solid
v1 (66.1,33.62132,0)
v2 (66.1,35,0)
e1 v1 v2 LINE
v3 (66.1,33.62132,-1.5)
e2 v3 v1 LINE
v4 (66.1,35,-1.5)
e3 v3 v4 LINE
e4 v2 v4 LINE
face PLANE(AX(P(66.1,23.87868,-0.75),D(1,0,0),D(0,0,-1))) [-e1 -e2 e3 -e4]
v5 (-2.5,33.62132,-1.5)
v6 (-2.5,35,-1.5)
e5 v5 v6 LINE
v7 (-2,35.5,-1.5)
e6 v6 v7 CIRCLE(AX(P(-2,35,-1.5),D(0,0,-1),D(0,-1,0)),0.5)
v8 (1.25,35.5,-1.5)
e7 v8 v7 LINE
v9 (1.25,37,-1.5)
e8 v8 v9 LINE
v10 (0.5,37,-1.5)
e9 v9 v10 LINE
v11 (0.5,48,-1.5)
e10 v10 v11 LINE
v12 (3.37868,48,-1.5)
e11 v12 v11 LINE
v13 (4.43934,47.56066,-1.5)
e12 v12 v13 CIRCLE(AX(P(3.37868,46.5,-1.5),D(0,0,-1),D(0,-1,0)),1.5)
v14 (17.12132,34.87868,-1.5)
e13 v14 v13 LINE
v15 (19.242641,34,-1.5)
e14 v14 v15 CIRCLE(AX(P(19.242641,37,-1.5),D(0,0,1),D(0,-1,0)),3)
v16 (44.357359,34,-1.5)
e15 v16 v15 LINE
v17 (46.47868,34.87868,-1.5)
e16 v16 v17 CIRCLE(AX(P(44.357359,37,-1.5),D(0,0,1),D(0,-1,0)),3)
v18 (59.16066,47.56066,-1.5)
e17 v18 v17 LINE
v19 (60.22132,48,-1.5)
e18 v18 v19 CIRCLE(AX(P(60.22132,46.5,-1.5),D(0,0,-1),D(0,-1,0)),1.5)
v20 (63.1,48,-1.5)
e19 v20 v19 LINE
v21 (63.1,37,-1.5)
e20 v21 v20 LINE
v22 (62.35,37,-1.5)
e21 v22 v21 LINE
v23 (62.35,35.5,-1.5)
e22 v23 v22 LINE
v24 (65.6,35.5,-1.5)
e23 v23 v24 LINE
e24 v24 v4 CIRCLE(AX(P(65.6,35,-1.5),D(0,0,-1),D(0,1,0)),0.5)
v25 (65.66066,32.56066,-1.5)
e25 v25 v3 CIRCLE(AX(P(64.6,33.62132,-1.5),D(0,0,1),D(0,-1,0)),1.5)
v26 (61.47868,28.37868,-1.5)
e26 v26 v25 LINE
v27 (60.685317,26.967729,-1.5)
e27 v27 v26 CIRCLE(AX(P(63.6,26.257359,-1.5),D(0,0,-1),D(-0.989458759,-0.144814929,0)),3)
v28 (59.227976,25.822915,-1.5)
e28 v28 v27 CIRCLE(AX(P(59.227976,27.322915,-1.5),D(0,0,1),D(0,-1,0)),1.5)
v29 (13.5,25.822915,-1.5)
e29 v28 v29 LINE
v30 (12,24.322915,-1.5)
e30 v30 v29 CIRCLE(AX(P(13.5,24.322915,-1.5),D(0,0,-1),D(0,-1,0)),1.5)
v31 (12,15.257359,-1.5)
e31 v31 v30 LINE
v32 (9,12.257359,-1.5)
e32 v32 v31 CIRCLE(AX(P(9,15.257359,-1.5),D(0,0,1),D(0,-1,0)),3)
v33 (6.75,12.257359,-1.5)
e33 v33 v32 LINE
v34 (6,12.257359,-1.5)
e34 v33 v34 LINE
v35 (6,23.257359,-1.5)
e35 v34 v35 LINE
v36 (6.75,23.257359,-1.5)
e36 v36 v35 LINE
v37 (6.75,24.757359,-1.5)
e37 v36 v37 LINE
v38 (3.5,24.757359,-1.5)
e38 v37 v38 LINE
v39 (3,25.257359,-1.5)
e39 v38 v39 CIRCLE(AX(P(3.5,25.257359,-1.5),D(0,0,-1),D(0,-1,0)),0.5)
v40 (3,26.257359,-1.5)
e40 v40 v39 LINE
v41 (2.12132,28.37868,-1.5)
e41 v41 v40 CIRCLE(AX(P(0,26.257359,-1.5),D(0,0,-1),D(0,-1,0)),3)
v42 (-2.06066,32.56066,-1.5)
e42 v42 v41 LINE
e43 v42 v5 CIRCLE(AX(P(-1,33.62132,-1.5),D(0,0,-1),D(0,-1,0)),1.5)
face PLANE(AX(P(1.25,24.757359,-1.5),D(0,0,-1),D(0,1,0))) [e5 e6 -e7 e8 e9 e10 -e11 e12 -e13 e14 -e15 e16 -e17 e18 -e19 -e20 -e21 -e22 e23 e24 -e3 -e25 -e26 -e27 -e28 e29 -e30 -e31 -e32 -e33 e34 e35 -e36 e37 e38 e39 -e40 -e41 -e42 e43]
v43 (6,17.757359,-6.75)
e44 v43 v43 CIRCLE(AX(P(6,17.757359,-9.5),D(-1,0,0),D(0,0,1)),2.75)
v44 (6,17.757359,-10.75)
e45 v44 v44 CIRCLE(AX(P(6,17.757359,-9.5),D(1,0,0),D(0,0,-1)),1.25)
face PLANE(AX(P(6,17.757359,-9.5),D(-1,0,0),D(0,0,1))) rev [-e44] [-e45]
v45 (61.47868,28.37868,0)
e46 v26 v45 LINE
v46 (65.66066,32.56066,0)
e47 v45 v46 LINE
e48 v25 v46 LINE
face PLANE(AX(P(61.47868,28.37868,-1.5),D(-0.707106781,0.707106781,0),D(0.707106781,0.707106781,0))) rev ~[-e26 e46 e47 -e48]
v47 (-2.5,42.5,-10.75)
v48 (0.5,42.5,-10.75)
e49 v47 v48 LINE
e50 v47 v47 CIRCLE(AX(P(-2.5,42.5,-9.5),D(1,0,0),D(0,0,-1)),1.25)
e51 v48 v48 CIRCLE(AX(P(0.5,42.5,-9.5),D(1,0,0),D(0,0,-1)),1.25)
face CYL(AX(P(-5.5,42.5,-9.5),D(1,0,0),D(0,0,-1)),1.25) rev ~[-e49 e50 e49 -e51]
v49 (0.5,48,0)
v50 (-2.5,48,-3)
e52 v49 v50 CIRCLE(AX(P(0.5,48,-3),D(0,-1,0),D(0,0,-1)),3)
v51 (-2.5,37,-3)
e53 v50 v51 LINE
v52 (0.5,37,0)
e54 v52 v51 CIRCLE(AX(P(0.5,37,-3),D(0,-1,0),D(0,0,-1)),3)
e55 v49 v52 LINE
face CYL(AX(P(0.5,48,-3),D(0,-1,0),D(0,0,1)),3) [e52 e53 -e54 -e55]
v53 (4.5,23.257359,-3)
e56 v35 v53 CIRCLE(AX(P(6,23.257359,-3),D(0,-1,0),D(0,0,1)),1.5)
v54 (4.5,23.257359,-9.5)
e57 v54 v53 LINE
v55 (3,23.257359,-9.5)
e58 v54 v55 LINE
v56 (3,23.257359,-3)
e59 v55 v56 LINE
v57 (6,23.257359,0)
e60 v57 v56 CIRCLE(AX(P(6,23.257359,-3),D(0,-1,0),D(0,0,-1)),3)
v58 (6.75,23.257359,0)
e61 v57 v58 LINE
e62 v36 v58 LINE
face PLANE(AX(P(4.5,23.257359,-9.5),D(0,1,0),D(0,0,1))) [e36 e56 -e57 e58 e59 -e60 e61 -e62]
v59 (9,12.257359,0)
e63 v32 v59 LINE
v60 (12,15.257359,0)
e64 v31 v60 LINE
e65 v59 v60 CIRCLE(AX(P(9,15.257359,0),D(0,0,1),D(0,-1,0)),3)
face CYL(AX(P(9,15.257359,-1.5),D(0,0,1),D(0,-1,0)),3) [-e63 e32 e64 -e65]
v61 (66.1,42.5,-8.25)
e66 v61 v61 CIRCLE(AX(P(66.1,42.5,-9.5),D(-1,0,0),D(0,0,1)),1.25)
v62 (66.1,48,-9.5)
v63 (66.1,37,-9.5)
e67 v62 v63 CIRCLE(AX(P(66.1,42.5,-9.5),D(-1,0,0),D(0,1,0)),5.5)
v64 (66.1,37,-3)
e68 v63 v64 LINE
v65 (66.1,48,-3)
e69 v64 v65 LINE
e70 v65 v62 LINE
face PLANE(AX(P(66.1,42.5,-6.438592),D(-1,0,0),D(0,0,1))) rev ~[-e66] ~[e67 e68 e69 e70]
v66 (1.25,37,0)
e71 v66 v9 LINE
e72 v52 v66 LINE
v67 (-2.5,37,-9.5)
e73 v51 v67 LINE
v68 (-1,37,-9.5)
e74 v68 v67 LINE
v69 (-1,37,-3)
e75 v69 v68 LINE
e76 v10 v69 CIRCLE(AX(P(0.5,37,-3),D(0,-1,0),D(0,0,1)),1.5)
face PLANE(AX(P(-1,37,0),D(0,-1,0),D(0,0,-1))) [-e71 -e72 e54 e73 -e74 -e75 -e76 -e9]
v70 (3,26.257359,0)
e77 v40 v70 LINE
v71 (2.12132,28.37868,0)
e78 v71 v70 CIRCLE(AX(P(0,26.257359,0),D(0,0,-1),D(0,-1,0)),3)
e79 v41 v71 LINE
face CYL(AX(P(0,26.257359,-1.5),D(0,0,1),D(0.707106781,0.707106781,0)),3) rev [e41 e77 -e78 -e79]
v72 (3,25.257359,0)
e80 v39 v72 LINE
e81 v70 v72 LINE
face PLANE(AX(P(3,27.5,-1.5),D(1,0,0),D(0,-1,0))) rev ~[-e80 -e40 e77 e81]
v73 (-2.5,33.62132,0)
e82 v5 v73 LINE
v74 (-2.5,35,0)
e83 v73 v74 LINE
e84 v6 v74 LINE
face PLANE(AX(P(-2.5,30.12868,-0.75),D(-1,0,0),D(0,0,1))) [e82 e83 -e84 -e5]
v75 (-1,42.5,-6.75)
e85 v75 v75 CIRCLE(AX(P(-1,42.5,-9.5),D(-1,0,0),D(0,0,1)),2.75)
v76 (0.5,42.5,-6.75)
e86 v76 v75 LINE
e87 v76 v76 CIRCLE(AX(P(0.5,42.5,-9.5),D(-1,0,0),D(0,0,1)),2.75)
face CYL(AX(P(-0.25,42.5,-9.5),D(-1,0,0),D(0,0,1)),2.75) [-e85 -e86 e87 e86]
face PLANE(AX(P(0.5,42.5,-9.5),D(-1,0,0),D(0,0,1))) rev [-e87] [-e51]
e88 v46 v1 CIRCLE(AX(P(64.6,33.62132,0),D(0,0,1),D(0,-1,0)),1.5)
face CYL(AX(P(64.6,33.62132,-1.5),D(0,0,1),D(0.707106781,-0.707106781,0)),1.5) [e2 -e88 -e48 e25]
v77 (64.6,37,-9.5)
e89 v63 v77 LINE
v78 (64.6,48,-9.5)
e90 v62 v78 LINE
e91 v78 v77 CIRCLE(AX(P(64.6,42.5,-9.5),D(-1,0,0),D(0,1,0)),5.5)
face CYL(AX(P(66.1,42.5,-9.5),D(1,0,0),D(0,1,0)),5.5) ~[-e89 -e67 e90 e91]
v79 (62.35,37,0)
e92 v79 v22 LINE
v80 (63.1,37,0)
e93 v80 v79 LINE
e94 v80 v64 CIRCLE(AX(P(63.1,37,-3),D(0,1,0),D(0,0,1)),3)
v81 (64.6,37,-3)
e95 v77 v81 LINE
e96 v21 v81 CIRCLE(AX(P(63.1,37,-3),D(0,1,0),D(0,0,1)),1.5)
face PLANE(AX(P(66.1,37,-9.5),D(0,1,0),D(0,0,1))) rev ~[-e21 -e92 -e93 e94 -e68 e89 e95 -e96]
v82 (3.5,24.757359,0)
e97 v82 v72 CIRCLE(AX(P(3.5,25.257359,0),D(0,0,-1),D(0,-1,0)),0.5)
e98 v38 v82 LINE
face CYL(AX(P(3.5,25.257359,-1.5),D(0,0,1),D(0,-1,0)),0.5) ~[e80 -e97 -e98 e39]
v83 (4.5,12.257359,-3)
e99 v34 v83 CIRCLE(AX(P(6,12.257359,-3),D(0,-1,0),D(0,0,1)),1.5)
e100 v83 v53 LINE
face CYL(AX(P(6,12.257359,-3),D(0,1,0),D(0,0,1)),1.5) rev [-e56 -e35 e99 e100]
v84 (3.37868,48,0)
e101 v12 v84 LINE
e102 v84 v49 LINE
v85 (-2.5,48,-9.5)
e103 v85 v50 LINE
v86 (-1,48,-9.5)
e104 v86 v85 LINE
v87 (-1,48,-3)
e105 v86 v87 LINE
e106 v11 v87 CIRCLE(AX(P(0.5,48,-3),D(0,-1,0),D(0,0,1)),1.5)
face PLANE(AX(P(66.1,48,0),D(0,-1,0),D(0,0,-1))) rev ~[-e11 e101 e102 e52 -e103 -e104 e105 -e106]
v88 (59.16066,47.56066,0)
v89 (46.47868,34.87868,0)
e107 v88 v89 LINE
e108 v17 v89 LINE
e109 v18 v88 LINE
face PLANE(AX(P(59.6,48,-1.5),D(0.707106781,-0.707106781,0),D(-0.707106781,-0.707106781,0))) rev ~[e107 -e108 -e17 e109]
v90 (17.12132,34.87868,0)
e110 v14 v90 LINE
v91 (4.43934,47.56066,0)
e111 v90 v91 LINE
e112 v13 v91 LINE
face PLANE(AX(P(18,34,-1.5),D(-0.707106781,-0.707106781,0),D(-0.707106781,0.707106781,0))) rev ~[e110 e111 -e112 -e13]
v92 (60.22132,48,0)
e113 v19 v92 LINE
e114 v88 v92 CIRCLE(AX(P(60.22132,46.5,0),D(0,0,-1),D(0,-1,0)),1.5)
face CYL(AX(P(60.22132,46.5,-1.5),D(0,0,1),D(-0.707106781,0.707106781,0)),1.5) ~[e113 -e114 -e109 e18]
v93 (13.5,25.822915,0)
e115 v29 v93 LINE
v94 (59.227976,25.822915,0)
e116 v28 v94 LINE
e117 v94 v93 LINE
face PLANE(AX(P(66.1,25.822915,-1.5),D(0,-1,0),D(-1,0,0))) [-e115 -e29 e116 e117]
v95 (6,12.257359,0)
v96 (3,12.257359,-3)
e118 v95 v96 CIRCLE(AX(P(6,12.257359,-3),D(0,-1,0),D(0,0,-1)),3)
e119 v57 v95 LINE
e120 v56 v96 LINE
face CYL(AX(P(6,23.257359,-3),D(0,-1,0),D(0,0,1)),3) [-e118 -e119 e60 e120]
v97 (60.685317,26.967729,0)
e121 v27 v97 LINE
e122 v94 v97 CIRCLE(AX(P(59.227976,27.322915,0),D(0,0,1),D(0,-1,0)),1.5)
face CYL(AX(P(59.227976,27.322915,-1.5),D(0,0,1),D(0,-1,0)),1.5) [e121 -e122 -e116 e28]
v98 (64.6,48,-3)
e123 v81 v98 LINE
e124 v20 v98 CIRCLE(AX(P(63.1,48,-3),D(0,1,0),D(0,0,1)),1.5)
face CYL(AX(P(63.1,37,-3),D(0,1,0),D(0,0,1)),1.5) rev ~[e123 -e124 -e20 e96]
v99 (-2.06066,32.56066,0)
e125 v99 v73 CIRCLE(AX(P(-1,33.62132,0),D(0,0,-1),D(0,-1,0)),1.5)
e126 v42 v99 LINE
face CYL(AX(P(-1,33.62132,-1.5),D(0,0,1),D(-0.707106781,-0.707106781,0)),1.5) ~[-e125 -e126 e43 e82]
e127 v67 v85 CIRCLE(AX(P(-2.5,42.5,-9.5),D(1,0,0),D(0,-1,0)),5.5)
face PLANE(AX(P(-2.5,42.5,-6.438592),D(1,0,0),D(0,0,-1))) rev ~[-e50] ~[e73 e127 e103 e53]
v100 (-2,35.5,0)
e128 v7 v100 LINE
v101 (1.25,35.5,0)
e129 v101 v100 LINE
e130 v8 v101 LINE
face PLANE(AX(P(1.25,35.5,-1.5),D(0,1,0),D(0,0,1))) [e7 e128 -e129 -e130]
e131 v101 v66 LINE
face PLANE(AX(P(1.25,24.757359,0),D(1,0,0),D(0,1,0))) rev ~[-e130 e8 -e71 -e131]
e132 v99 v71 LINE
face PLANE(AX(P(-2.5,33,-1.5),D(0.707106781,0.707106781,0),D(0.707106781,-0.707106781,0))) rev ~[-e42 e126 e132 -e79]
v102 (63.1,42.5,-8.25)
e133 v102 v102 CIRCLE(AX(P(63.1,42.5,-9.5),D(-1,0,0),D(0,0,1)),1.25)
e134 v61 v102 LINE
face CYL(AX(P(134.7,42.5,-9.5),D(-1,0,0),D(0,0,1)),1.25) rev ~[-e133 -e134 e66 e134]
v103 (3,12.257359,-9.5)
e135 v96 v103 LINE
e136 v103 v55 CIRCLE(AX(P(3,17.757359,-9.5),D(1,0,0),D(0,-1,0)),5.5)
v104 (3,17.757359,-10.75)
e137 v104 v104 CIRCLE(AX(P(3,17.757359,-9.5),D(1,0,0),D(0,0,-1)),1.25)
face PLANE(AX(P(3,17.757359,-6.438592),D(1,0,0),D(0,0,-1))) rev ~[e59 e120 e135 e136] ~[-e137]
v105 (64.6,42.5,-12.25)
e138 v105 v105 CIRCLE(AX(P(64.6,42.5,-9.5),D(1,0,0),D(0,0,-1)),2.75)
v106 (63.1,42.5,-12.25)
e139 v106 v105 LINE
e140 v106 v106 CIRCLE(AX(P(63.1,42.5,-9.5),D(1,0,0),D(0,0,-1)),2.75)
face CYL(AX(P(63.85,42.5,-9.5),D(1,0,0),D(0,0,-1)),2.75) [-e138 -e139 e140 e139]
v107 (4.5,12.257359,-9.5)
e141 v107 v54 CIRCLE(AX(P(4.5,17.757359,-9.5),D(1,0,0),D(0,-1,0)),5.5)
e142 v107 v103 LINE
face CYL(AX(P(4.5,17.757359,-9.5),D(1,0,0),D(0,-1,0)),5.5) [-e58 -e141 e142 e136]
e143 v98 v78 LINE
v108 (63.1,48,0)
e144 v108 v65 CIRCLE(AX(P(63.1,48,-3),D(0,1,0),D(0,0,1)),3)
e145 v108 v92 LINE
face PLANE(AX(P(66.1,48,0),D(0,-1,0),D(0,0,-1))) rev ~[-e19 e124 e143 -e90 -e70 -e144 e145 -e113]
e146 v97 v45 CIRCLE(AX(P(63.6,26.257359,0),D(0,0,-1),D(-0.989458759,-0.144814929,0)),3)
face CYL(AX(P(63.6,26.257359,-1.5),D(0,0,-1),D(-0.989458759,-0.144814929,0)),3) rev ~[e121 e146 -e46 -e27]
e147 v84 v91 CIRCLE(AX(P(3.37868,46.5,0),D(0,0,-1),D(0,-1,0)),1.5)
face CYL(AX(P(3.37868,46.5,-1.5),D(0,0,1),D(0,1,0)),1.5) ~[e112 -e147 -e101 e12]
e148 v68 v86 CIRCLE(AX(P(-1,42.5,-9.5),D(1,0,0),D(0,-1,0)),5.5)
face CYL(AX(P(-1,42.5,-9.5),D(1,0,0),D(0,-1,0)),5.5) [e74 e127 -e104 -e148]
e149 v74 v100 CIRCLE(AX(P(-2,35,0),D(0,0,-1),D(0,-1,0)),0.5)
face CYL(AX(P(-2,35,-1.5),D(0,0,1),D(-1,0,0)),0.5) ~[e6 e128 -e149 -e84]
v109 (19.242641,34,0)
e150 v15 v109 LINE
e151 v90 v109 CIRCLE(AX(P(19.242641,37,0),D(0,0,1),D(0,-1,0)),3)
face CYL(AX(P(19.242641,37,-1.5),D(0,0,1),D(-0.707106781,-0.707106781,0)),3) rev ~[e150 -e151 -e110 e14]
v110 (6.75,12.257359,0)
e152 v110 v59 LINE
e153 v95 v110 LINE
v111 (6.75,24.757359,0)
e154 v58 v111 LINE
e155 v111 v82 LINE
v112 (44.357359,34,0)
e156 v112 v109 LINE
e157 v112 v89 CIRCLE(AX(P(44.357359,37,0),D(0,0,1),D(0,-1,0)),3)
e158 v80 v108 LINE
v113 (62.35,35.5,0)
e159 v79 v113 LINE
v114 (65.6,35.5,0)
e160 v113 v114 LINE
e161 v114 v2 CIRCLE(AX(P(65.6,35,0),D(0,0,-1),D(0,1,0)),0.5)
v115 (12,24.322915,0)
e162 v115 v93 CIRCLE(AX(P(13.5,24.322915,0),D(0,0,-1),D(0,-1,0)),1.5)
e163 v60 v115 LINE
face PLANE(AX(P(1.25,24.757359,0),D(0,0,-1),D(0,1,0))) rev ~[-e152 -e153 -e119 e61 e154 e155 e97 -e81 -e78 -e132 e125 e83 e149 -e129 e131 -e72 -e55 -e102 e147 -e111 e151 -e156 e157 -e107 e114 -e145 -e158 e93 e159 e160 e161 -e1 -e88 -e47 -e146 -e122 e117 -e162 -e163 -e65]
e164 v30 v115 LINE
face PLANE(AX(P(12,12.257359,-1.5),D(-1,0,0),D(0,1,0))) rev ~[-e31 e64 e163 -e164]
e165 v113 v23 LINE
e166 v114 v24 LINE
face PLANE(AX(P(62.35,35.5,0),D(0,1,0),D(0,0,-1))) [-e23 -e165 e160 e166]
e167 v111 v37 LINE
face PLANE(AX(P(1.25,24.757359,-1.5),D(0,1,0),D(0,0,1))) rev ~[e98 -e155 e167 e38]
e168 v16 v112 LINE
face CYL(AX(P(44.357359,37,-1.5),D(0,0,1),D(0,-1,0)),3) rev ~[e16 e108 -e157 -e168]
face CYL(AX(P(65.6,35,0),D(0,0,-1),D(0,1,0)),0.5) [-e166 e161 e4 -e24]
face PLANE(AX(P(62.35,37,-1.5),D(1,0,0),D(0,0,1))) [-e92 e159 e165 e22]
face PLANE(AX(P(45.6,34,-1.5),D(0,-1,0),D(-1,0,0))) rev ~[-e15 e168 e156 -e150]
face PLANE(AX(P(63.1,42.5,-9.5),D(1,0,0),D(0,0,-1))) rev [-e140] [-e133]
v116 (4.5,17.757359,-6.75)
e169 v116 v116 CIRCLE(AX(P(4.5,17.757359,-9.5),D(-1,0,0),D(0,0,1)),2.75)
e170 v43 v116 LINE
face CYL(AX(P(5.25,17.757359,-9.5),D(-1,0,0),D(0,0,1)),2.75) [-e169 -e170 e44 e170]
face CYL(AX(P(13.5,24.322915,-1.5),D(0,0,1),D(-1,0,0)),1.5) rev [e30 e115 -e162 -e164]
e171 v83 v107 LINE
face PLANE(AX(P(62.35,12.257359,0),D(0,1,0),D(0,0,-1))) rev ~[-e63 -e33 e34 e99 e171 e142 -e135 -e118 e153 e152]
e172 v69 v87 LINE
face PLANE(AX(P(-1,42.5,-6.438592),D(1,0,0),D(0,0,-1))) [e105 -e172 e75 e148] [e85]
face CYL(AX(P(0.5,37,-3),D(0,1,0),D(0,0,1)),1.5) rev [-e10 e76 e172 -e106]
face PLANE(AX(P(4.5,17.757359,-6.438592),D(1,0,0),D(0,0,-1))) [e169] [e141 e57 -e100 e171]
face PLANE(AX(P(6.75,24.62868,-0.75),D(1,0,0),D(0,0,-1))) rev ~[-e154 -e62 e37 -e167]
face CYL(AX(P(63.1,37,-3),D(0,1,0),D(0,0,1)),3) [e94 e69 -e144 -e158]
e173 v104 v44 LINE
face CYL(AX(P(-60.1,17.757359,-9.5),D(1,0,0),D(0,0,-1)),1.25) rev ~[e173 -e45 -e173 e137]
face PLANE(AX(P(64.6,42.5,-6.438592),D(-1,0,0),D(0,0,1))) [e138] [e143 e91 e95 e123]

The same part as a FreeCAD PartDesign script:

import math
import FreeCAD as App
import Part
import Sketcher

V = App.Vector
Q = App.Units.Quantity


def edges_at(feature, points):
    """Names of the edges that pass closest to the given points."""
    edges = feature.Shape.Edges
    near = lambda p: min(range(len(edges)), key=lambda i: edges[i].distToShape(Part.Vertex(*p))[0])
    return sorted({f"Edge{near(p) + 1}" for p in points})


def add_polygon(sketch, points):
    """Adds a closed chain of lines whose ends are joined by coincident constraints."""
    first, n = sketch.GeometryCount, len(points)
    for a, b in zip(points, points[1:] + points[:1]):
        sketch.addGeometry(Part.LineSegment(App.Vector(*a, 0), App.Vector(*b, 0)), False)
    for i in range(n):
        sketch.addConstraint(Sketcher.Constraint("Coincident", first + i, 2, first + (i + 1) % n, 1))

doc = App.newDocument("Part")
params = doc.addObject("Spreadsheet::Sheet", "Params")
for row, (alias, value) in enumerate([
    ("sketch1_width", "5.5 mm"),
    ("pad1_length", "1.5 mm"),
    ("sketch2_height", "1.5 mm"),
    ("pad2_length", "55.6 mm"),
    ("sketch3_width", "11 mm"),
    ("sketch3_height", "1.5 mm"),
    ("pad3_length", "2.25 mm"),
    ("sketch4_height", "1.5 mm"),
    ("sketch4_width", "63.35 mm"),
    ("pad4_length", "11 mm"),
    ("sketch5_radius", "5.5 mm"),
    ("sketch5_height", "9.5 mm"),
    ("pad5_length", "1.5 mm"),
    ("sketch6_radius", "5.5 mm"),
    ("sketch6_height", "9.5 mm"),
    ("pad6_length", "1.5 mm"),
    ("sketch7_width", "11 mm"),
    ("sketch7_height", "1.5 mm"),
    ("pad7_length", "2.25 mm"),
    ("sketch8_radius", "5.5 mm"),
    ("sketch8_height", "9.5 mm"),
    ("pad8_length", "1.5 mm"),
    ("sketch9_height", "1.5 mm"),
    ("pad9_length", "3.75 mm"),
    ("sketch10_height", "1.5 mm"),
    ("pad10_length", "3.75 mm"),
    ("sketch11_width", "5.5 mm"),
    ("sketch12_width", "54.1 mm"),
    ("sketch13_radius", "3 mm"),
    ("sketch14_width", "27.6 mm"),
    ("sketch14_width2", "55.6 mm"),
    ("sketch15_width", "1.5 mm"),
    ("sketch15_height", "2.75 mm"),
    ("revolution_angle", "360 deg"),
    ("sketch16_width", "1.5 mm"),
    ("sketch16_height", "2.75 mm"),
    ("revolution2_angle", "360 deg"),
    ("sketch17_width", "1.5 mm"),
    ("sketch17_height", "2.75 mm"),
    ("revolution3_angle", "360 deg"),
    ("sketch18_diameter", "2.5 mm"),
    ("hole_diameter", "2.5 mm"),
    ("hole_depth", "63.1 mm"),
    ("sketch19_diameter", "2.5 mm"),
    ("hole2_diameter", "2.5 mm"),
    ("hole2_depth", "3 mm"),
    ("sketch20_diameter", "2.5 mm"),
    ("hole3_diameter", "2.5 mm"),
    ("hole3_depth", "68.6 mm"),
    ("fillet_radius", "0.5 mm"),
    ("fillet2_radius", "1.5 mm"),
    ("fillet3_radius", "3 mm"),
], start=1):
    params.set(f"A{row}", alias)
    params.set(f"B{row}", "=" + value)
    params.setAlias(f"B{row}", alias)

body = doc.addObject("PartDesign::Body", "Body")

# Sketch on XY plane
sketch1 = doc.addObject("Sketcher::SketchObject", "Sketch")
body.addObject(sketch1)
sketch1.AttachmentSupport = (doc.XY_Plane, [""])
sketch1.MapMode = "FlatFace"
add_polygon(sketch1, [(1, 37), (1, 25), (7, 25), (7, 37)])  # lines 0-3
sketch1.addConstraint(Sketcher.Constraint("Vertical", 0))
sketch1.addConstraint(Sketcher.Constraint("Horizontal", 1))
sketch1.addConstraint(Sketcher.Constraint("Vertical", 2))
sketch1.addConstraint(Sketcher.Constraint("Horizontal", 3))
sketch1.addConstraint(Sketcher.Constraint("DistanceX", 1, 1, 1, 2, Q("5.5 mm")))
sketch1.addConstraint(Sketcher.Constraint("DistanceY", -1, 1, 2, 2, Q("37 mm")))
sketch1.addConstraint(Sketcher.Constraint("DistanceX", -1, 1, 0, 2, Q("1.25 mm")))
sketch1.addConstraint(Sketcher.Constraint("DistanceY", 0, 2, 0, 1, Q("12.242641 mm")))
sketch1.setExpression("Constraints[8]", "Params.sketch1_width")
pad1 = doc.addObject("PartDesign::Pad", "Pad")
body.addObject(pad1)
pad1.Profile = sketch1
pad1.setExpression("Length", "Params.pad1_length")
pad1.Reversed = True

# Sketch on YZ plane
sketch2 = doc.addObject("Sketcher::SketchObject", "Sketch001")
body.addObject(sketch2)
sketch2.AttachmentSupport = (doc.YZ_Plane, [""])
sketch2.MapMode = "FlatFace"
sketch2.AttachmentOffset = App.Placement(V(0, 0, 6.75), App.Rotation())
add_polygon(sketch2, [(37, 0), (12.3, 0), (12.3, -1.5), (37, -1.5)])  # lines 0-3
sketch2.addConstraint(Sketcher.Constraint("Horizontal", 0))
sketch2.addConstraint(Sketcher.Constraint("Vertical", 1))
sketch2.addConstraint(Sketcher.Constraint("Horizontal", 2))
sketch2.addConstraint(Sketcher.Constraint("Vertical", 3))
sketch2.addConstraint(Sketcher.Constraint("PointOnObject", 0, 2, -1))
sketch2.addConstraint(Sketcher.Constraint("DistanceY", 1, 2, 1, 1, Q("1.5 mm")))
sketch2.addConstraint(Sketcher.Constraint("DistanceX", -1, 1, 2, 2, Q("37 mm")))
sketch2.addConstraint(Sketcher.Constraint("DistanceX", 0, 2, 0, 1, Q("24.742641 mm")))
sketch2.setExpression("Constraints[9]", "Params.sketch2_height")
pad2 = doc.addObject("PartDesign::Pad", "Pad001")
body.addObject(pad2)
pad2.Profile = sketch2
pad2.setExpression("Length", "Params.pad2_length")

# Sketch on YZ plane
sketch3 = doc.addObject("Sketcher::SketchObject", "Sketch002")
body.addObject(sketch3)
sketch3.AttachmentSupport = (doc.YZ_Plane, [""])
sketch3.MapMode = "FlatFace"
sketch3.AttachmentOffset = App.Placement(V(0, 0, 6.75), App.Rotation())
add_polygon(sketch3, [(23.3, -1.5), (12.3, -1.5), (12.3, 0), (23.3, 0)])  # lines 0-3
sketch3.addConstraint(Sketcher.Constraint("Horizontal", 0))
sketch3.addConstraint(Sketcher.Constraint("Vertical", 1))
sketch3.addConstraint(Sketcher.Constraint("Horizontal", 2))
sketch3.addConstraint(Sketcher.Constraint("Vertical", 3))
sketch3.addConstraint(Sketcher.Constraint("PointOnObject", 1, 2, -1))
sketch3.addConstraint(Sketcher.Constraint("DistanceX", 0, 2, 0, 1, Q("11 mm")))
sketch3.addConstraint(Sketcher.Constraint("DistanceY", 1, 1, 1, 2, Q("1.5 mm")))
sketch3.addConstraint(Sketcher.Constraint("DistanceX", -1, 1, 0, 2, Q("12.257359 mm")))
sketch3.setExpression("Constraints[9]", "Params.sketch3_width")
sketch3.setExpression("Constraints[10]", "Params.sketch3_height")
pad3 = doc.addObject("PartDesign::Pad", "Pad002")
body.addObject(pad3)
pad3.Profile = sketch3
pad3.setExpression("Length", "Params.pad3_length")
pad3.Reversed = True

# Sketch on XZ plane
sketch4 = doc.addObject("Sketcher::SketchObject", "Sketch003")
body.addObject(sketch4)
sketch4.AttachmentSupport = (doc.XZ_Plane, [""])
sketch4.MapMode = "FlatFace"
sketch4.AttachmentOffset = App.Placement(V(0, 0, -37), App.Rotation())
add_polygon(sketch4, [(62.4, 0), (62.4, -1.5), (-1, -1.5), (-1, 0)])  # lines 0-3
sketch4.addConstraint(Sketcher.Constraint("Vertical", 0))
sketch4.addConstraint(Sketcher.Constraint("Horizontal", 1))
sketch4.addConstraint(Sketcher.Constraint("Vertical", 2))
sketch4.addConstraint(Sketcher.Constraint("Horizontal", 3))
sketch4.addConstraint(Sketcher.Constraint("PointOnObject", 2, 2, -1))
sketch4.addConstraint(Sketcher.Constraint("DistanceY", 0, 2, 0, 1, Q("1.5 mm")))
sketch4.addConstraint(Sketcher.Constraint("DistanceX", 1, 2, -1, 1, Q("1 mm")))
sketch4.addConstraint(Sketcher.Constraint("DistanceX", 1, 2, 1, 1, Q("63.35 mm")))
sketch4.setExpression("Constraints[9]", "Params.sketch4_height")
sketch4.setExpression("Constraints[11]", "Params.sketch4_width")
pad4 = doc.addObject("PartDesign::Pad", "Pad003")
body.addObject(pad4)
pad4.Profile = sketch4
pad4.setExpression("Length", "Params.pad4_length")
pad4.Reversed = True

# Sketch on YZ plane
sketch5 = doc.addObject("Sketcher::SketchObject", "Sketch004")
body.addObject(sketch5)
sketch5.AttachmentSupport = (doc.YZ_Plane, [""])
sketch5.MapMode = "FlatFace"
sketch5.AttachmentOffset = App.Placement(V(0, 0, -1), App.Rotation())
sketch5.addGeometry(Part.LineSegment(V(48, 0, 0), V(48, -10, 0)), False)
sketch5.addGeometry(Part.ArcOfCircle(Part.Circle(V(42, -10, 0), V(0, 0, 1), 6), math.radians(180), math.radians(360)), False)
sketch5.addGeometry(Part.LineSegment(V(37, -10, 0), V(37, 0, 0)), False)
sketch5.addGeometry(Part.LineSegment(V(37, 0, 0), V(48, 0, 0)), False)
sketch5.addConstraint(Sketcher.Constraint("Tangent", 0, 2, 1, 2))
sketch5.addConstraint(Sketcher.Constraint("Tangent", 1, 1, 2, 1))
sketch5.addConstraint(Sketcher.Constraint("Coincident", 2, 2, 3, 1))
sketch5.addConstraint(Sketcher.Constraint("Coincident", 3, 2, 0, 1))
sketch5.addConstraint(Sketcher.Constraint("Vertical", 0))
sketch5.addConstraint(Sketcher.Constraint("Vertical", 2))
sketch5.addConstraint(Sketcher.Constraint("Horizontal", 3))
sketch5.addConstraint(Sketcher.Constraint("PointOnObject", 2, 2, -1))
sketch5.addConstraint(Sketcher.Constraint("Radius", 1, Q("5.5 mm")))
sketch5.addConstraint(Sketcher.Constraint("DistanceY", 0, 2, 0, 1, Q("9.5 mm")))
sketch5.addConstraint(Sketcher.Constraint("DistanceX", -1, 1, 0, 2, Q("48 mm")))
sketch5.setExpression("Constraints[8]", "Params.sketch5_radius")
sketch5.setExpression("Constraints[9]", "Params.sketch5_height")
pad5 = doc.addObject("PartDesign::Pad", "Pad004")
body.addObject(pad5)
pad5.Profile = sketch5
pad5.setExpression("Length", "Params.pad5_length")
pad5.Reversed = True

# Sketch on YZ plane
sketch6 = doc.addObject("Sketcher::SketchObject", "Sketch005")
body.addObject(sketch6)
sketch6.AttachmentSupport = (doc.YZ_Plane, [""])
sketch6.MapMode = "FlatFace"
sketch6.AttachmentOffset = App.Placement(V(0, 0, 4.5), App.Rotation())
sketch6.addGeometry(Part.LineSegment(V(23, 0, 0), V(23, -10, 0)), False)
sketch6.addGeometry(Part.ArcOfCircle(Part.Circle(V(18, -10, 0), V(0, 0, 1), 6), math.radians(180), math.radians(360)), False)
sketch6.addGeometry(Part.LineSegment(V(12, -10, 0), V(12, 0, 0)), False)
sketch6.addGeometry(Part.LineSegment(V(12, 0, 0), V(23, 0, 0)), False)
sketch6.addConstraint(Sketcher.Constraint("Tangent", 0, 2, 1, 2))
sketch6.addConstraint(Sketcher.Constraint("Tangent", 1, 1, 2, 1))
sketch6.addConstraint(Sketcher.Constraint("Coincident", 2, 2, 3, 1))
sketch6.addConstraint(Sketcher.Constraint("Coincident", 3, 2, 0, 1))
sketch6.addConstraint(Sketcher.Constraint("Vertical", 0))
sketch6.addConstraint(Sketcher.Constraint("Vertical", 2))
sketch6.addConstraint(Sketcher.Constraint("Horizontal", 3))
sketch6.addConstraint(Sketcher.Constraint("PointOnObject", 2, 2, -1))
sketch6.addConstraint(Sketcher.Constraint("Radius", 1, Q("5.5 mm")))
sketch6.addConstraint(Sketcher.Constraint("DistanceY", 0, 2, 0, 1, Q("9.5 mm")))
sketch6.addConstraint(Sketcher.Constraint("DistanceX", -1, 1, 1, 3, Q("17.757359 mm")))
sketch6.setExpression("Constraints[8]", "Params.sketch6_radius")
sketch6.setExpression("Constraints[9]", "Params.sketch6_height")
pad6 = doc.addObject("PartDesign::Pad", "Pad005")
body.addObject(pad6)
pad6.Profile = sketch6
pad6.setExpression("Length", "Params.pad6_length")
pad6.Reversed = True

# Sketch on YZ plane
sketch7 = doc.addObject("Sketcher::SketchObject", "Sketch006")
body.addObject(sketch7)
sketch7.AttachmentSupport = (doc.YZ_Plane, [""])
sketch7.MapMode = "FlatFace"
sketch7.AttachmentOffset = App.Placement(V(0, 0, 62.35), App.Rotation())
add_polygon(sketch7, [(48, 0), (37, 0), (37, -1.5), (48, -1.5)])  # lines 0-3
sketch7.addConstraint(Sketcher.Constraint("Horizontal", 0))
sketch7.addConstraint(Sketcher.Constraint("Vertical", 1))
sketch7.addConstraint(Sketcher.Constraint("Horizontal", 2))
sketch7.addConstraint(Sketcher.Constraint("Vertical", 3))
sketch7.addConstraint(Sketcher.Constraint("PointOnObject", 0, 2, -1))
sketch7.addConstraint(Sketcher.Constraint("DistanceX", 0, 2, 0, 1, Q("11 mm")))
sketch7.addConstraint(Sketcher.Constraint("DistanceY", 1, 2, 1, 1, Q("1.5 mm")))
sketch7.addConstraint(Sketcher.Constraint("DistanceX", -1, 1, 0, 2, Q("37 mm")))
sketch7.setExpression("Constraints[9]", "Params.sketch7_width")
sketch7.setExpression("Constraints[10]", "Params.sketch7_height")
pad7 = doc.addObject("PartDesign::Pad", "Pad006")
body.addObject(pad7)
pad7.Profile = sketch7
pad7.setExpression("Length", "Params.pad7_length")

# Sketch on YZ plane
sketch8 = doc.addObject("Sketcher::SketchObject", "Sketch007")
body.addObject(sketch8)
sketch8.AttachmentSupport = (doc.YZ_Plane, [""])
sketch8.MapMode = "FlatFace"
sketch8.AttachmentOffset = App.Placement(V(0, 0, 66.1), App.Rotation())
sketch8.addGeometry(Part.LineSegment(V(37, 0, 0), V(37, -10, 0)), False)
sketch8.addGeometry(Part.ArcOfCircle(Part.Circle(V(42, -10, 0), V(0, 0, 1), 6), math.radians(180), math.radians(360)), False)
sketch8.addGeometry(Part.LineSegment(V(48, -10, 0), V(48, 0, 0)), False)
sketch8.addGeometry(Part.LineSegment(V(48, 0, 0), V(37, 0, 0)), False)
sketch8.addConstraint(Sketcher.Constraint("Tangent", 0, 2, 1, 1))
sketch8.addConstraint(Sketcher.Constraint("Tangent", 1, 2, 2, 1))
sketch8.addConstraint(Sketcher.Constraint("Coincident", 2, 2, 3, 1))
sketch8.addConstraint(Sketcher.Constraint("Coincident", 3, 2, 0, 1))
sketch8.addConstraint(Sketcher.Constraint("Vertical", 0))
sketch8.addConstraint(Sketcher.Constraint("Vertical", 2))
sketch8.addConstraint(Sketcher.Constraint("Horizontal", 3))
sketch8.addConstraint(Sketcher.Constraint("PointOnObject", 2, 2, -1))
sketch8.addConstraint(Sketcher.Constraint("Radius", 1, Q("5.5 mm")))
sketch8.addConstraint(Sketcher.Constraint("DistanceY", 0, 2, 0, 1, Q("9.5 mm")))
sketch8.addConstraint(Sketcher.Constraint("DistanceX", -1, 1, 0, 2, Q("37 mm")))
sketch8.setExpression("Constraints[8]", "Params.sketch8_radius")
sketch8.setExpression("Constraints[9]", "Params.sketch8_height")
pad8 = doc.addObject("PartDesign::Pad", "Pad007")
body.addObject(pad8)
pad8.Profile = sketch8
pad8.setExpression("Length", "Params.pad8_length")
pad8.Reversed = True

# Sketch on YZ plane
sketch9 = doc.addObject("Sketcher::SketchObject", "Sketch008")
body.addObject(sketch9)
sketch9.AttachmentSupport = (doc.YZ_Plane, [""])
sketch9.MapMode = "FlatFace"
sketch9.AttachmentOffset = App.Placement(V(0, 0, 62.35), App.Rotation())
add_polygon(sketch9, [(35.5, 0), (12.3, 0), (12.3, -1.5), (35.5, -1.5)])  # lines 0-3
sketch9.addConstraint(Sketcher.Constraint("Horizontal", 0))
sketch9.addConstraint(Sketcher.Constraint("Vertical", 1))
sketch9.addConstraint(Sketcher.Constraint("Horizontal", 2))
sketch9.addConstraint(Sketcher.Constraint("Vertical", 3))
sketch9.addConstraint(Sketcher.Constraint("PointOnObject", 0, 2, -1))
sketch9.addConstraint(Sketcher.Constraint("DistanceY", 1, 2, 1, 1, Q("1.5 mm")))
sketch9.addConstraint(Sketcher.Constraint("DistanceX", -1, 1, 2, 2, Q("35.5 mm")))
sketch9.addConstraint(Sketcher.Constraint("DistanceX", 0, 2, 0, 1, Q("23.242641 mm")))
sketch9.setExpression("Constraints[9]", "Params.sketch9_height")
pad9 = doc.addObject("PartDesign::Pad", "Pad008")
body.addObject(pad9)
pad9.Profile = sketch9
pad9.setExpression("Length", "Params.pad9_length")

# Sketch on YZ plane
sketch10 = doc.addObject("Sketcher::SketchObject", "Sketch009")
body.addObject(sketch10)
sketch10.AttachmentSupport = (doc.YZ_Plane, [""])
sketch10.MapMode = "FlatFace"
sketch10.AttachmentOffset = App.Placement(V(0, 0, 1.25), App.Rotation())
add_polygon(sketch10, [(35.5, -1.5), (24.8, -1.5), (24.8, 0), (35.5, 0)])  # lines 0-3
sketch10.addConstraint(Sketcher.Constraint("Horizontal", 0))
sketch10.addConstraint(Sketcher.Constraint("Vertical", 1))
sketch10.addConstraint(Sketcher.Constraint("Horizontal", 2))
sketch10.addConstraint(Sketcher.Constraint("Vertical", 3))
sketch10.addConstraint(Sketcher.Constraint("PointOnObject", 1, 2, -1))
sketch10.addConstraint(Sketcher.Constraint("DistanceY", 1, 1, 1, 2, Q("1.5 mm")))
sketch10.addConstraint(Sketcher.Constraint("DistanceX", -1, 1, 2, 2, Q("35.5 mm")))
sketch10.addConstraint(Sketcher.Constraint("DistanceX", 0, 2, 0, 1, Q("10.742641 mm")))
sketch10.setExpression("Constraints[9]", "Params.sketch10_height")
pad10 = doc.addObject("PartDesign::Pad", "Pad009")
body.addObject(pad10)
pad10.Profile = sketch10
pad10.setExpression("Length", "Params.pad10_length")
pad10.Reversed = True

# Sketch on XY plane
sketch11 = doc.addObject("Sketcher::SketchObject", "Sketch010")
body.addObject(sketch11)
sketch11.AttachmentSupport = (doc.XY_Plane, [""])
sketch11.MapMode = "FlatFace"
sketch11.AttachmentOffset = App.Placement(V(0, 0, -1.5), App.Rotation())
add_polygon(sketch11, [(-2.5, 24.8), (-2.5, 33), (3, 27.5), (3, 24.8)])  # lines 0-3
sketch11.addConstraint(Sketcher.Constraint("Vertical", 0))
sketch11.addConstraint(Sketcher.Constraint("Vertical", 2))
sketch11.addConstraint(Sketcher.Constraint("Horizontal", 3))
sketch11.addConstraint(Sketcher.Constraint("Angle", 1, Q("-45 deg")))
sketch11.addConstraint(Sketcher.Constraint("DistanceX", 3, 2, 3, 1, Q("5.5 mm")))
sketch11.addConstraint(Sketcher.Constraint("DistanceY", -1, 1, 0, 2, Q("33 mm")))
sketch11.addConstraint(Sketcher.Constraint("DistanceX", -1, 1, 1, 2, Q("3 mm")))
sketch11.addConstraint(Sketcher.Constraint("DistanceY", 0, 1, 0, 2, Q("8.242641 mm")))
sketch11.setExpression("Constraints[8]", "Params.sketch11_width")
pocket1 = doc.addObject("PartDesign::Pocket", "Pocket")
body.addObject(pocket1)
pocket1.Profile = sketch11
pocket1.Type = "ThroughAll"
pocket1.Reversed = True

# Sketch on XY plane
sketch12 = doc.addObject("Sketcher::SketchObject", "Sketch011")
body.addObject(sketch12)
sketch12.AttachmentSupport = (doc.XY_Plane, [""])
sketch12.MapMode = "FlatFace"
sketch12.AttachmentOffset = App.Placement(V(0, 0, -1.5), App.Rotation())
add_polygon(sketch12, [(66, 26), (66, 12), (12, 12), (12, 26)])  # lines 0-3
sketch12.addConstraint(Sketcher.Constraint("Vertical", 0))
sketch12.addConstraint(Sketcher.Constraint("Horizontal", 1))
sketch12.addConstraint(Sketcher.Constraint("Vertical", 2))
sketch12.addConstraint(Sketcher.Constraint("Horizontal", 3))
sketch12.addConstraint(Sketcher.Constraint("DistanceX", 1, 2, 1, 1, Q("54.1 mm")))
sketch12.addConstraint(Sketcher.Constraint("DistanceX", -1, 1, 1, 2, Q("12 mm")))
sketch12.addConstraint(Sketcher.Constraint("DistanceY", 0, 2, 0, 1, Q("13.565555 mm")))
sketch12.addConstraint(Sketcher.Constraint("DistanceY", -1, 1, 0, 2, Q("12.257359 mm")))
sketch12.setExpression("Constraints[8]", "Params.sketch12_width")
pocket2 = doc.addObject("PartDesign::Pocket", "Pocket001")
body.addObject(pocket2)
pocket2.Profile = sketch12
pocket2.Type = "ThroughAll"
pocket2.Reversed = True

# Sketch on XY plane
sketch13 = doc.addObject("Sketcher::SketchObject", "Sketch012")
body.addObject(sketch13)
sketch13.AttachmentSupport = (doc.XY_Plane, [""])
sketch13.MapMode = "FlatFace"
sketch13.AttachmentOffset = App.Placement(V(0, 0, -1.5), App.Rotation())
sketch13.addGeometry(Part.LineSegment(V(61.5, 28.4, 0), V(66.1, 33, 0)), False)
sketch13.addGeometry(Part.LineSegment(V(66.1, 33, 0), V(66.1, 25.8, 0)), False)
sketch13.addGeometry(Part.LineSegment(V(66.1, 25.8, 0), V(60.6, 25.8, 0)), False)
sketch13.addGeometry(Part.ArcOfCircle(Part.Circle(V(63.6, 26.3, 0), V(0, 0, 1), 3), math.radians(135), math.radians(188)), False)
sketch13.addConstraint(Sketcher.Constraint("Coincident", 0, 2, 1, 1))
sketch13.addConstraint(Sketcher.Constraint("Coincident", 1, 2, 2, 1))
sketch13.addConstraint(Sketcher.Constraint("Coincident", 2, 2, 3, 2))
sketch13.addConstraint(Sketcher.Constraint("Tangent", 3, 1, 0, 1))
sketch13.addConstraint(Sketcher.Constraint("Vertical", 1))
sketch13.addConstraint(Sketcher.Constraint("Horizontal", 2))
sketch13.addConstraint(Sketcher.Constraint("Radius", 3, Q("3 mm")))
sketch13.addConstraint(Sketcher.Constraint("Angle", 0, Q("45 deg")))
sketch13.addConstraint(Sketcher.Constraint("DistanceY", -1, 1, 0, 2, Q("33 mm")))
sketch13.addConstraint(Sketcher.Constraint("DistanceX", -1, 1, 3, 3, Q("63.6 mm")))
sketch13.addConstraint(Sketcher.Constraint("DistanceX", -1, 1, 0, 2, Q("66.1 mm")))
sketch13.addConstraint(Sketcher.Constraint("DistanceX", 2, 2, 2, 1, Q("5.468376 mm")))
sketch13.setExpression("Constraints[6]", "Params.sketch13_radius")
pocket3 = doc.addObject("PartDesign::Pocket", "Pocket002")
body.addObject(pocket3)
pocket3.Profile = sketch13
pocket3.Type = "ThroughAll"
pocket3.Reversed = True

# Sketch on XY plane
sketch14 = doc.addObject("Sketcher::SketchObject", "Sketch013")
body.addObject(sketch14)
sketch14.AttachmentSupport = (doc.XY_Plane, [""])
sketch14.MapMode = "FlatFace"
sketch14.AttachmentOffset = App.Placement(V(0, 0, -1.5), App.Rotation())
add_polygon(sketch14, [(60, 48), (46, 34), (18, 34), (4, 48)])  # lines 0-3
sketch14.addConstraint(Sketcher.Constraint("Horizontal", 1))
sketch14.addConstraint(Sketcher.Constraint("Horizontal", 3))
sketch14.addConstraint(Sketcher.Constraint("Perpendicular", 0, 2))
sketch14.addConstraint(Sketcher.Constraint("Equal", 0, 2))
sketch14.addConstraint(Sketcher.Constraint("DistanceX", 1, 2, 1, 1, Q("27.6 mm")))
sketch14.addConstraint(Sketcher.Constraint("DistanceX", 3, 1, 3, 2, Q("55.6 mm")))
sketch14.addConstraint(Sketcher.Constraint("DistanceY", -1, 1, 0, 2, Q("34 mm")))
sketch14.addConstraint(Sketcher.Constraint("DistanceX", -1, 1, 1, 2, Q("18 mm")))
sketch14.setExpression("Constraints[8]", "Params.sketch14_width")
sketch14.setExpression("Constraints[9]", "Params.sketch14_width2")
pocket4 = doc.addObject("PartDesign::Pocket", "Pocket003")
body.addObject(pocket4)
pocket4.Profile = sketch14
pocket4.Type = "ThroughAll"
pocket4.Reversed = True

# Sketch on XY plane
sketch15 = doc.addObject("Sketcher::SketchObject", "Sketch014")
body.addObject(sketch15)
sketch15.AttachmentSupport = (doc.XY_Plane, [""])
sketch15.MapMode = "FlatFace"
sketch15.AttachmentOffset = App.Placement(V(0, 0, -9.5), App.Rotation())
add_polygon(sketch15, [(6, 20.5), (6, 17.8), (4.5, 17.8), (4.5, 20.5)])  # lines 0-3
sketch15.addGeometry(Part.LineSegment(V(6, 17.8, 0), V(4.5, 17.8, 0)), True)  # axis
sketch15.addConstraint(Sketcher.Constraint("Vertical", 0))
sketch15.addConstraint(Sketcher.Constraint("Horizontal", 1))
sketch15.addConstraint(Sketcher.Constraint("Vertical", 2))
sketch15.addConstraint(Sketcher.Constraint("Horizontal", 3))
sketch15.addConstraint(Sketcher.Constraint("Horizontal", 4))
sketch15.addConstraint(Sketcher.Constraint("Coincident", 4, 1, 0, 2))
sketch15.addConstraint(Sketcher.Constraint("Vertical", 2, 2, 4, 2))
sketch15.addConstraint(Sketcher.Constraint("DistanceX", 1, 2, 1, 1, Q("1.5 mm")))
sketch15.addConstraint(Sketcher.Constraint("DistanceX", -1, 1, 0, 2, Q("6 mm")))
sketch15.addConstraint(Sketcher.Constraint("DistanceY", 0, 2, 0, 1, Q("2.75 mm")))
sketch15.addConstraint(Sketcher.Constraint("DistanceY", -1, 1, 0, 2, Q("17.757359 mm")))
sketch15.setExpression("Constraints[11]", "Params.sketch15_width")
sketch15.setExpression("Constraints[13]", "Params.sketch15_height")
revolution = doc.addObject("PartDesign::Revolution", "Revolution")
body.addObject(revolution)
revolution.Profile = sketch15
revolution.ReferenceAxis = (sketch15, ["Axis0"])
revolution.setExpression("Angle", "Params.revolution_angle")

# Sketch on XY plane
sketch16 = doc.addObject("Sketcher::SketchObject", "Sketch015")
body.addObject(sketch16)
sketch16.AttachmentSupport = (doc.XY_Plane, [""])
sketch16.MapMode = "FlatFace"
sketch16.AttachmentOffset = App.Placement(V(0, 0, -9.5), App.Rotation())
add_polygon(sketch16, [(0.5, 45.2), (0.5, 42.5), (-1, 42.5), (-1, 45.2)])  # lines 0-3
sketch16.addGeometry(Part.LineSegment(V(0.5, 42.5, 0), V(-1, 42.5, 0)), True)  # axis
sketch16.addConstraint(Sketcher.Constraint("Vertical", 0))
sketch16.addConstraint(Sketcher.Constraint("Horizontal", 1))
sketch16.addConstraint(Sketcher.Constraint("Vertical", 2))
sketch16.addConstraint(Sketcher.Constraint("Horizontal", 3))
sketch16.addConstraint(Sketcher.Constraint("Horizontal", 4))
sketch16.addConstraint(Sketcher.Constraint("Coincident", 4, 1, 0, 2))
sketch16.addConstraint(Sketcher.Constraint("Vertical", 2, 2, 4, 2))
sketch16.addConstraint(Sketcher.Constraint("DistanceX", 1, 2, 1, 1, Q("1.5 mm")))
sketch16.addConstraint(Sketcher.Constraint("DistanceX", 1, 2, -1, 1, Q("1 mm")))
sketch16.addConstraint(Sketcher.Constraint("DistanceY", 0, 2, 0, 1, Q("2.75 mm")))
sketch16.addConstraint(Sketcher.Constraint("DistanceY", -1, 1, 0, 2, Q("42.5 mm")))
sketch16.setExpression("Constraints[11]", "Params.sketch16_width")
sketch16.setExpression("Constraints[13]", "Params.sketch16_height")
revolution2 = doc.addObject("PartDesign::Revolution", "Revolution001")
body.addObject(revolution2)
revolution2.Profile = sketch16
revolution2.ReferenceAxis = (sketch16, ["Axis0"])
revolution2.setExpression("Angle", "Params.revolution2_angle")

# Sketch on XY plane
sketch17 = doc.addObject("Sketcher::SketchObject", "Sketch016")
body.addObject(sketch17)
sketch17.AttachmentSupport = (doc.XY_Plane, [""])
sketch17.MapMode = "FlatFace"
sketch17.AttachmentOffset = App.Placement(V(0, 0, -9.5), App.Rotation())
add_polygon(sketch17, [(63.1, 45.2), (63.1, 42.5), (64.6, 42.5), (64.6, 45.2)])  # lines 0-3
sketch17.addGeometry(Part.LineSegment(V(63.1, 42.5, 0), V(64.6, 42.5, 0)), True)  # axis
sketch17.addConstraint(Sketcher.Constraint("Vertical", 0))
sketch17.addConstraint(Sketcher.Constraint("Horizontal", 1))
sketch17.addConstraint(Sketcher.Constraint("Vertical", 2))
sketch17.addConstraint(Sketcher.Constraint("Horizontal", 3))
sketch17.addConstraint(Sketcher.Constraint("Horizontal", 4))
sketch17.addConstraint(Sketcher.Constraint("Coincident", 4, 1, 0, 2))
sketch17.addConstraint(Sketcher.Constraint("Vertical", 2, 2, 4, 2))
sketch17.addConstraint(Sketcher.Constraint("DistanceX", 1, 1, 1, 2, Q("1.5 mm")))
sketch17.addConstraint(Sketcher.Constraint("DistanceY", 0, 2, 0, 1, Q("2.75 mm")))
sketch17.addConstraint(Sketcher.Constraint("DistanceX", -1, 1, 0, 2, Q("63.1 mm")))
sketch17.addConstraint(Sketcher.Constraint("DistanceY", -1, 1, 0, 2, Q("42.5 mm")))
sketch17.setExpression("Constraints[11]", "Params.sketch17_width")
sketch17.setExpression("Constraints[12]", "Params.sketch17_height")
revolution3 = doc.addObject("PartDesign::Revolution", "Revolution002")
body.addObject(revolution3)
revolution3.Profile = sketch17
revolution3.ReferenceAxis = (sketch17, ["Axis0"])
revolution3.setExpression("Angle", "Params.revolution3_angle")

# Sketch on YZ plane
sketch18 = doc.addObject("Sketcher::SketchObject", "Sketch017")
body.addObject(sketch18)
sketch18.AttachmentSupport = (doc.YZ_Plane, [""])
sketch18.MapMode = "FlatFace"
sketch18.AttachmentOffset = App.Placement(V(0, 0, 3), App.Rotation())
sketch18.addGeometry(Part.Circle(V(17.8, -9.5, 0), V(0, 0, 1), 1.2), False)
sketch18.addConstraint(Sketcher.Constraint("Diameter", 0, Q("2.5 mm")))
sketch18.addConstraint(Sketcher.Constraint("DistanceY", 0, 3, -1, 1, Q("9.5 mm")))
sketch18.addConstraint(Sketcher.Constraint("DistanceX", -1, 1, 0, 3, Q("17.757359 mm")))
sketch18.setExpression("Constraints[0]", "Params.sketch18_diameter")
doc.recompute()
hole = doc.addObject("PartDesign::Hole", "Hole")
body.addObject(hole)
hole.Profile = sketch18
hole.ThreadType = "None"
hole.setExpression("Diameter", "Params.hole_diameter")
hole.DepthType = "Dimension"
hole.setExpression("Depth", "Params.hole_depth")
hole.DrillPoint = "Flat"
hole.Reversed = True

# Sketch on YZ plane
sketch19 = doc.addObject("Sketcher::SketchObject", "Sketch018")
body.addObject(sketch19)
sketch19.AttachmentSupport = (doc.YZ_Plane, [""])
sketch19.MapMode = "FlatFace"
sketch19.AttachmentOffset = App.Placement(V(0, 0, -2.5), App.Rotation())
sketch19.addGeometry(Part.Circle(V(42.5, -9.5, 0), V(0, 0, 1), 1.2), False)
sketch19.addConstraint(Sketcher.Constraint("Diameter", 0, Q("2.5 mm")))
sketch19.addConstraint(Sketcher.Constraint("DistanceX", -1, 1, 0, 3, Q("42.5 mm")))
sketch19.addConstraint(Sketcher.Constraint("DistanceY", 0, 3, -1, 1, Q("9.5 mm")))
sketch19.setExpression("Constraints[0]", "Params.sketch19_diameter")
doc.recompute()
hole2 = doc.addObject("PartDesign::Hole", "Hole001")
body.addObject(hole2)
hole2.Profile = sketch19
hole2.ThreadType = "None"
hole2.setExpression("Diameter", "Params.hole2_diameter")
hole2.DepthType = "Dimension"
hole2.setExpression("Depth", "Params.hole2_depth")
hole2.DrillPoint = "Flat"
hole2.Reversed = True

# Sketch on YZ plane
sketch20 = doc.addObject("Sketcher::SketchObject", "Sketch019")
body.addObject(sketch20)
sketch20.AttachmentSupport = (doc.YZ_Plane, [""])
sketch20.MapMode = "FlatFace"
sketch20.AttachmentOffset = App.Placement(V(0, 0, 66.1), App.Rotation())
sketch20.addGeometry(Part.Circle(V(42.5, -9.5, 0), V(0, 0, 1), 1.2), False)
sketch20.addConstraint(Sketcher.Constraint("Diameter", 0, Q("2.5 mm")))
sketch20.addConstraint(Sketcher.Constraint("DistanceX", -1, 1, 0, 3, Q("42.5 mm")))
sketch20.addConstraint(Sketcher.Constraint("DistanceY", 0, 3, -1, 1, Q("9.5 mm")))
sketch20.setExpression("Constraints[0]", "Params.sketch20_diameter")
doc.recompute()
hole3 = doc.addObject("PartDesign::Hole", "Hole002")
body.addObject(hole3)
hole3.Profile = sketch20
hole3.ThreadType = "None"
hole3.setExpression("Diameter", "Params.hole3_diameter")
hole3.DepthType = "Dimension"
hole3.setExpression("Depth", "Params.hole3_depth")
hole3.DrillPoint = "Flat"
doc.recompute()

fillet = doc.addObject("PartDesign::Fillet", "Fillet")
body.addObject(fillet)
fillet.Base = (hole3, edges_at(hole3, [(66.1, 35.5, -0.75), (-2.5, 35.5, -0.75), (3, 24.757, -0.75)]))
fillet.setExpression("Radius", "Params.fillet_radius")
doc.recompute()

fillet2 = doc.addObject("PartDesign::Fillet", "Fillet001")
body.addObject(fillet2)
fillet2.Base = (fillet, edges_at(fillet, [
    (-2.5, 33, -0.75),
    (12, 25.823, -0.75),
    (60.632, 25.823, -0.75),
    (66.1, 33, -0.75),
    (59.6, 48, -0.75),
    (4, 48, -0.75),
    (4.5, 17.757, -1.5),
    (-1, 42.5, -1.5),
    (64.6, 42.5, -1.5),
]))
fillet2.setExpression("Radius", "Params.fillet2_radius")
doc.recompute()

fillet3 = doc.addObject("PartDesign::Fillet", "Fillet002")
body.addObject(fillet3)
fillet3.Base = (fillet2, edges_at(fillet2, [
    (66.1, 42.5, 0),
    (18, 34, -0.75),
    (45.6, 34, -0.75),
    (3, 27.5, -0.75),
    (12, 12.257, -0.75),
    (3, 17.757, 0),
    (-2.5, 42.5, 0),
]))
fillet3.setExpression("Radius", "Params.fillet3_radius")

doc.recompute()
